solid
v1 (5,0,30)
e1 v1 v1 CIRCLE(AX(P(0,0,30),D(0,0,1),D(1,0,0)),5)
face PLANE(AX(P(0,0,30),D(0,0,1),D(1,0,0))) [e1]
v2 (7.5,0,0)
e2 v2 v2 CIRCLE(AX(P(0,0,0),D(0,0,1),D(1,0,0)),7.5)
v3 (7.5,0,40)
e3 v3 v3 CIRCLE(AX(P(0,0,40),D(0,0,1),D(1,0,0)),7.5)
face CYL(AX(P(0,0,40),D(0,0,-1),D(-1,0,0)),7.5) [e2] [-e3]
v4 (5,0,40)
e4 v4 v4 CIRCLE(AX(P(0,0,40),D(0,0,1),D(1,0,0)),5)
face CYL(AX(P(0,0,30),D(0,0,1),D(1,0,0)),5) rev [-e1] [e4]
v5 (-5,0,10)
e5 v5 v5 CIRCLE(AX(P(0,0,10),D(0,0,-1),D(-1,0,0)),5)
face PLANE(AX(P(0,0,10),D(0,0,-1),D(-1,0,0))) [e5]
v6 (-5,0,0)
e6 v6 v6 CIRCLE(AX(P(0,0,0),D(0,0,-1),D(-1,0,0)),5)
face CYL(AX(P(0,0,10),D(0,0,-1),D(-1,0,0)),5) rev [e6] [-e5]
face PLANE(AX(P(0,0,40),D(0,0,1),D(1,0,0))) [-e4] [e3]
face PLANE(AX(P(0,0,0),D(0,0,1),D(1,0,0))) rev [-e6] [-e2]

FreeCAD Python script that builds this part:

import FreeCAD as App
import Part
import Sketcher

doc = App.newDocument("Part")
body = doc.addObject("PartDesign::Body", "Body")

sketch1 = body.newObject("Sketcher::SketchObject", "Sketch")
sketch1.AttachmentSupport = (doc.getObject("XY_Plane"), [""])
sketch1.MapMode = "FlatFace"
sketch1.addGeometry(Part.Circle(App.Vector(0, 0, 0), App.Vector(0, 0, 1), 8), False)
sketch1.addConstraint([
    Sketcher.Constraint("Coincident", 0, 3, -1, 1),
    Sketcher.Constraint("Diameter", 0, 15.0),
])
pad1 = body.newObject("PartDesign::Pad", "Pad")
pad1.Profile = sketch1
pad1.Length = 40

sketch2 = body.newObject("Sketcher::SketchObject", "Sketch001")
sketch2.AttachmentSupport = (doc.getObject("XY_Plane"), [""])
sketch2.MapMode = "FlatFace"
sketch2.AttachmentOffset = App.Placement(App.Vector(0, 0, 40), App.Rotation())
sketch2.addGeometry(Part.Circle(App.Vector(0, 0, 0), App.Vector(0, 0, 1), 5), False)
sketch2.addConstraint([
    Sketcher.Constraint("Coincident", 0, 3, -1, 1),
    Sketcher.Constraint("Diameter", 0, 10.0),
])
pocket1 = body.newObject("PartDesign::Pocket", "Pocket")
pocket1.Profile = sketch2
pocket1.Length = 10

sketch3 = body.newObject("Sketcher::SketchObject", "Sketch002")
sketch3.AttachmentSupport = (doc.getObject("XY_Plane"), [""])
sketch3.MapMode = "FlatFace"
sketch3.AttachmentOffset = App.Placement(App.Vector(0, 0, 10), App.Rotation())
sketch3.addGeometry(Part.Circle(App.Vector(0, 0, 0), App.Vector(0, 0, 1), 5), False)
sketch3.addConstraint([
    Sketcher.Constraint("Coincident", 0, 3, -1, 1),
    Sketcher.Constraint("Diameter", 0, 10.0),
])
pocket2 = body.newObject("PartDesign::Pocket", "Pocket001")
pocket2.Profile = sketch3
pocket2.Length = 10

doc.recompute()
